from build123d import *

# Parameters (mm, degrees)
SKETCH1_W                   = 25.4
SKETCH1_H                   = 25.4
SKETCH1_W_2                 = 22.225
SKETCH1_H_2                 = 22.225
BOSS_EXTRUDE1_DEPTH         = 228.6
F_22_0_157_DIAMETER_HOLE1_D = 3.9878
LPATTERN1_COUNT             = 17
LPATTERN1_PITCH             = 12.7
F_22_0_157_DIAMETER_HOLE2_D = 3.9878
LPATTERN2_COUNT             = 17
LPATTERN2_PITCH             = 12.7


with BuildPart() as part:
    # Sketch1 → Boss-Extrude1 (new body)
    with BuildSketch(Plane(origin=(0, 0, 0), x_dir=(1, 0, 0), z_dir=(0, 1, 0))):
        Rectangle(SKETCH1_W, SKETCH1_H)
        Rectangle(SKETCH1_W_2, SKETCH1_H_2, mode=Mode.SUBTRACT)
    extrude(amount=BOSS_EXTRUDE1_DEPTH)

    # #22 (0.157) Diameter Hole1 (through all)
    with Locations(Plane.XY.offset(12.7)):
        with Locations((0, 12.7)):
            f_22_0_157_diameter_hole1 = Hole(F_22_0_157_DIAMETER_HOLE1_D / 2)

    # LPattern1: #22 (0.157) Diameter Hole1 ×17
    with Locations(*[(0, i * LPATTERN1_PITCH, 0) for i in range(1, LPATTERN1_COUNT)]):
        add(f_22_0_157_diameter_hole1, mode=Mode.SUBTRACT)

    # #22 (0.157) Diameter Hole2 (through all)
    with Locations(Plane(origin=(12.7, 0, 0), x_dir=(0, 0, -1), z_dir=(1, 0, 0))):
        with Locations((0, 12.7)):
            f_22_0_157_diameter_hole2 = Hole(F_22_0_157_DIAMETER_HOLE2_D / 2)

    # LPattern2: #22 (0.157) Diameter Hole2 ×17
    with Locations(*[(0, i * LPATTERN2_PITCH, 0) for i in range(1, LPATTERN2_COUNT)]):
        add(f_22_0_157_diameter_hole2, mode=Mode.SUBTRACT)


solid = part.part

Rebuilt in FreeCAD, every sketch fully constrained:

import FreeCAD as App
import Part
import Sketcher
from FreeCAD import Vector
Q = App.Units.Quantity

doc = App.newDocument("Part")
body = doc.addObject("PartDesign::Body", "Body")

# Sketch on XZ plane
sketch1 = body.newObject("Sketcher::SketchObject", "Sketch")
sketch1.AttachmentSupport = (doc.getObject("XZ_Plane"), [""])
sketch1.MapMode = "FlatFace"
sketch1.addGeometry([
    Part.LineSegment(Vector(-13, -13, 0), Vector(-13, 13, 0)),  # 0
    Part.LineSegment(Vector(-13, 13, 0), Vector(13, 13, 0)),  # 1
    Part.LineSegment(Vector(13, 13, 0), Vector(13, -13, 0)),  # 2
    Part.LineSegment(Vector(13, -13, 0), Vector(-13, -13, 0)),  # 3
    Part.LineSegment(Vector(11, 11, 0), Vector(-11, 11, 0)),  # 4
    Part.LineSegment(Vector(-11, 11, 0), Vector(-11, -11, 0)),  # 5
    Part.LineSegment(Vector(-11, -11, 0), Vector(11, -11, 0)),  # 6
    Part.LineSegment(Vector(11, -11, 0), Vector(11, 11, 0)),  # 7
], False)
sketch1.addConstraint([
    Sketcher.Constraint("Coincident", 0, 2, 1, 1),
    Sketcher.Constraint("Coincident", 1, 2, 2, 1),
    Sketcher.Constraint("Coincident", 2, 2, 3, 1),
    Sketcher.Constraint("Coincident", 3, 2, 0, 1),
    Sketcher.Constraint("Coincident", 4, 2, 5, 1),
    Sketcher.Constraint("Coincident", 5, 2, 6, 1),
    Sketcher.Constraint("Coincident", 6, 2, 7, 1),
    Sketcher.Constraint("Coincident", 7, 2, 4, 1),
    Sketcher.Constraint("Vertical", 0),
    Sketcher.Constraint("Horizontal", 1),
    Sketcher.Constraint("Vertical", 2),
    Sketcher.Constraint("Horizontal", 3),
    Sketcher.Constraint("Horizontal", 4),
    Sketcher.Constraint("Vertical", 5),
    Sketcher.Constraint("Horizontal", 6),
    Sketcher.Constraint("Vertical", 7),
    Sketcher.Constraint("Symmetric", 0, 2, 2, 2, -1, 1),
    Sketcher.Constraint("Symmetric", 4, 2, 6, 2, -1, 1),
    Sketcher.Constraint("Equal", 3, 0),
    Sketcher.Constraint("Equal", 6, 5),
    Sketcher.Constraint("DistanceX", 1, 1, 1, 2, Q("1 in")),
    Sketcher.Constraint("DistanceX", 4, 2, 4, 1, Q("0.875 in")),
])
pad1 = body.newObject("PartDesign::Pad", "Pad")
pad1.Profile = sketch1
pad1.Length = Q("9 in")
pad1.Reversed = True

# Sketch on XY plane
sketch2 = body.newObject("Sketcher::SketchObject", "Sketch001")
sketch2.AttachmentSupport = (doc.getObject("XY_Plane"), [""])
sketch2.MapMode = "FlatFace"
sketch2.AttachmentOffset = App.Placement(Vector(0, 0, 0.5 * 25.4), App.Rotation())
sketch2.addGeometry(Part.Circle(Vector(0, 12.7, 0), Vector(0, 0, 1), 2), False)
sketch2.addConstraint([
    Sketcher.Constraint("PointOnObject", 0, 3, -2),
    Sketcher.Constraint("Diameter", 0, Q("0.157 in")),
    Sketcher.Constraint("DistanceY", -1, 1, 0, 3, Q("0.5 in")),
])
doc.recompute()
hole = body.newObject("PartDesign::Hole", "Hole")
hole.Profile = sketch2
hole.ThreadType = "None"
hole.Diameter = Q("0.157 in")
hole.DepthType = "ThroughAll"
doc.recompute()

linearpattern = body.newObject("PartDesign::LinearPattern", "LinearPattern")
linearpattern.Originals = [hole]
linearpattern.Direction = (doc.getObject("Y_Axis"), [""])
linearpattern.Mode = "offset"
linearpattern.Offset = Q("0.5 in")
linearpattern.Occurrences = 17
body.Tip = linearpattern

# Sketch on YZ plane
sketch3 = body.newObject("Sketcher::SketchObject", "Sketch002")
sketch3.AttachmentSupport = (doc.getObject("YZ_Plane"), [""])
sketch3.MapMode = "FlatFace"
sketch3.AttachmentOffset = App.Placement(Vector(0, 0, 0.5 * 25.4), App.Rotation())
sketch3.addGeometry(Part.Circle(Vector(12.7, 0, 0), Vector(0, 0, 1), 2), False)
sketch3.addConstraint([
    Sketcher.Constraint("PointOnObject", 0, 3, -1),
    Sketcher.Constraint("Diameter", 0, Q("0.157 in")),
    Sketcher.Constraint("DistanceX", -1, 1, 0, 3, Q("0.5 in")),
])
doc.recompute()
hole2 = body.newObject("PartDesign::Hole", "Hole001")
hole2.Profile = sketch3
hole2.ThreadType = "None"
hole2.Diameter = Q("0.157 in")
hole2.DepthType = "ThroughAll"
doc.recompute()

linearpattern2 = body.newObject("PartDesign::LinearPattern", "LinearPattern001")
linearpattern2.Originals = [hole2]
linearpattern2.Direction = (doc.getObject("Y_Axis"), [""])
linearpattern2.Mode = "offset"
linearpattern2.Offset = Q("0.5 in")
linearpattern2.Occurrences = 17
body.Tip = linearpattern2

doc.recompute()
